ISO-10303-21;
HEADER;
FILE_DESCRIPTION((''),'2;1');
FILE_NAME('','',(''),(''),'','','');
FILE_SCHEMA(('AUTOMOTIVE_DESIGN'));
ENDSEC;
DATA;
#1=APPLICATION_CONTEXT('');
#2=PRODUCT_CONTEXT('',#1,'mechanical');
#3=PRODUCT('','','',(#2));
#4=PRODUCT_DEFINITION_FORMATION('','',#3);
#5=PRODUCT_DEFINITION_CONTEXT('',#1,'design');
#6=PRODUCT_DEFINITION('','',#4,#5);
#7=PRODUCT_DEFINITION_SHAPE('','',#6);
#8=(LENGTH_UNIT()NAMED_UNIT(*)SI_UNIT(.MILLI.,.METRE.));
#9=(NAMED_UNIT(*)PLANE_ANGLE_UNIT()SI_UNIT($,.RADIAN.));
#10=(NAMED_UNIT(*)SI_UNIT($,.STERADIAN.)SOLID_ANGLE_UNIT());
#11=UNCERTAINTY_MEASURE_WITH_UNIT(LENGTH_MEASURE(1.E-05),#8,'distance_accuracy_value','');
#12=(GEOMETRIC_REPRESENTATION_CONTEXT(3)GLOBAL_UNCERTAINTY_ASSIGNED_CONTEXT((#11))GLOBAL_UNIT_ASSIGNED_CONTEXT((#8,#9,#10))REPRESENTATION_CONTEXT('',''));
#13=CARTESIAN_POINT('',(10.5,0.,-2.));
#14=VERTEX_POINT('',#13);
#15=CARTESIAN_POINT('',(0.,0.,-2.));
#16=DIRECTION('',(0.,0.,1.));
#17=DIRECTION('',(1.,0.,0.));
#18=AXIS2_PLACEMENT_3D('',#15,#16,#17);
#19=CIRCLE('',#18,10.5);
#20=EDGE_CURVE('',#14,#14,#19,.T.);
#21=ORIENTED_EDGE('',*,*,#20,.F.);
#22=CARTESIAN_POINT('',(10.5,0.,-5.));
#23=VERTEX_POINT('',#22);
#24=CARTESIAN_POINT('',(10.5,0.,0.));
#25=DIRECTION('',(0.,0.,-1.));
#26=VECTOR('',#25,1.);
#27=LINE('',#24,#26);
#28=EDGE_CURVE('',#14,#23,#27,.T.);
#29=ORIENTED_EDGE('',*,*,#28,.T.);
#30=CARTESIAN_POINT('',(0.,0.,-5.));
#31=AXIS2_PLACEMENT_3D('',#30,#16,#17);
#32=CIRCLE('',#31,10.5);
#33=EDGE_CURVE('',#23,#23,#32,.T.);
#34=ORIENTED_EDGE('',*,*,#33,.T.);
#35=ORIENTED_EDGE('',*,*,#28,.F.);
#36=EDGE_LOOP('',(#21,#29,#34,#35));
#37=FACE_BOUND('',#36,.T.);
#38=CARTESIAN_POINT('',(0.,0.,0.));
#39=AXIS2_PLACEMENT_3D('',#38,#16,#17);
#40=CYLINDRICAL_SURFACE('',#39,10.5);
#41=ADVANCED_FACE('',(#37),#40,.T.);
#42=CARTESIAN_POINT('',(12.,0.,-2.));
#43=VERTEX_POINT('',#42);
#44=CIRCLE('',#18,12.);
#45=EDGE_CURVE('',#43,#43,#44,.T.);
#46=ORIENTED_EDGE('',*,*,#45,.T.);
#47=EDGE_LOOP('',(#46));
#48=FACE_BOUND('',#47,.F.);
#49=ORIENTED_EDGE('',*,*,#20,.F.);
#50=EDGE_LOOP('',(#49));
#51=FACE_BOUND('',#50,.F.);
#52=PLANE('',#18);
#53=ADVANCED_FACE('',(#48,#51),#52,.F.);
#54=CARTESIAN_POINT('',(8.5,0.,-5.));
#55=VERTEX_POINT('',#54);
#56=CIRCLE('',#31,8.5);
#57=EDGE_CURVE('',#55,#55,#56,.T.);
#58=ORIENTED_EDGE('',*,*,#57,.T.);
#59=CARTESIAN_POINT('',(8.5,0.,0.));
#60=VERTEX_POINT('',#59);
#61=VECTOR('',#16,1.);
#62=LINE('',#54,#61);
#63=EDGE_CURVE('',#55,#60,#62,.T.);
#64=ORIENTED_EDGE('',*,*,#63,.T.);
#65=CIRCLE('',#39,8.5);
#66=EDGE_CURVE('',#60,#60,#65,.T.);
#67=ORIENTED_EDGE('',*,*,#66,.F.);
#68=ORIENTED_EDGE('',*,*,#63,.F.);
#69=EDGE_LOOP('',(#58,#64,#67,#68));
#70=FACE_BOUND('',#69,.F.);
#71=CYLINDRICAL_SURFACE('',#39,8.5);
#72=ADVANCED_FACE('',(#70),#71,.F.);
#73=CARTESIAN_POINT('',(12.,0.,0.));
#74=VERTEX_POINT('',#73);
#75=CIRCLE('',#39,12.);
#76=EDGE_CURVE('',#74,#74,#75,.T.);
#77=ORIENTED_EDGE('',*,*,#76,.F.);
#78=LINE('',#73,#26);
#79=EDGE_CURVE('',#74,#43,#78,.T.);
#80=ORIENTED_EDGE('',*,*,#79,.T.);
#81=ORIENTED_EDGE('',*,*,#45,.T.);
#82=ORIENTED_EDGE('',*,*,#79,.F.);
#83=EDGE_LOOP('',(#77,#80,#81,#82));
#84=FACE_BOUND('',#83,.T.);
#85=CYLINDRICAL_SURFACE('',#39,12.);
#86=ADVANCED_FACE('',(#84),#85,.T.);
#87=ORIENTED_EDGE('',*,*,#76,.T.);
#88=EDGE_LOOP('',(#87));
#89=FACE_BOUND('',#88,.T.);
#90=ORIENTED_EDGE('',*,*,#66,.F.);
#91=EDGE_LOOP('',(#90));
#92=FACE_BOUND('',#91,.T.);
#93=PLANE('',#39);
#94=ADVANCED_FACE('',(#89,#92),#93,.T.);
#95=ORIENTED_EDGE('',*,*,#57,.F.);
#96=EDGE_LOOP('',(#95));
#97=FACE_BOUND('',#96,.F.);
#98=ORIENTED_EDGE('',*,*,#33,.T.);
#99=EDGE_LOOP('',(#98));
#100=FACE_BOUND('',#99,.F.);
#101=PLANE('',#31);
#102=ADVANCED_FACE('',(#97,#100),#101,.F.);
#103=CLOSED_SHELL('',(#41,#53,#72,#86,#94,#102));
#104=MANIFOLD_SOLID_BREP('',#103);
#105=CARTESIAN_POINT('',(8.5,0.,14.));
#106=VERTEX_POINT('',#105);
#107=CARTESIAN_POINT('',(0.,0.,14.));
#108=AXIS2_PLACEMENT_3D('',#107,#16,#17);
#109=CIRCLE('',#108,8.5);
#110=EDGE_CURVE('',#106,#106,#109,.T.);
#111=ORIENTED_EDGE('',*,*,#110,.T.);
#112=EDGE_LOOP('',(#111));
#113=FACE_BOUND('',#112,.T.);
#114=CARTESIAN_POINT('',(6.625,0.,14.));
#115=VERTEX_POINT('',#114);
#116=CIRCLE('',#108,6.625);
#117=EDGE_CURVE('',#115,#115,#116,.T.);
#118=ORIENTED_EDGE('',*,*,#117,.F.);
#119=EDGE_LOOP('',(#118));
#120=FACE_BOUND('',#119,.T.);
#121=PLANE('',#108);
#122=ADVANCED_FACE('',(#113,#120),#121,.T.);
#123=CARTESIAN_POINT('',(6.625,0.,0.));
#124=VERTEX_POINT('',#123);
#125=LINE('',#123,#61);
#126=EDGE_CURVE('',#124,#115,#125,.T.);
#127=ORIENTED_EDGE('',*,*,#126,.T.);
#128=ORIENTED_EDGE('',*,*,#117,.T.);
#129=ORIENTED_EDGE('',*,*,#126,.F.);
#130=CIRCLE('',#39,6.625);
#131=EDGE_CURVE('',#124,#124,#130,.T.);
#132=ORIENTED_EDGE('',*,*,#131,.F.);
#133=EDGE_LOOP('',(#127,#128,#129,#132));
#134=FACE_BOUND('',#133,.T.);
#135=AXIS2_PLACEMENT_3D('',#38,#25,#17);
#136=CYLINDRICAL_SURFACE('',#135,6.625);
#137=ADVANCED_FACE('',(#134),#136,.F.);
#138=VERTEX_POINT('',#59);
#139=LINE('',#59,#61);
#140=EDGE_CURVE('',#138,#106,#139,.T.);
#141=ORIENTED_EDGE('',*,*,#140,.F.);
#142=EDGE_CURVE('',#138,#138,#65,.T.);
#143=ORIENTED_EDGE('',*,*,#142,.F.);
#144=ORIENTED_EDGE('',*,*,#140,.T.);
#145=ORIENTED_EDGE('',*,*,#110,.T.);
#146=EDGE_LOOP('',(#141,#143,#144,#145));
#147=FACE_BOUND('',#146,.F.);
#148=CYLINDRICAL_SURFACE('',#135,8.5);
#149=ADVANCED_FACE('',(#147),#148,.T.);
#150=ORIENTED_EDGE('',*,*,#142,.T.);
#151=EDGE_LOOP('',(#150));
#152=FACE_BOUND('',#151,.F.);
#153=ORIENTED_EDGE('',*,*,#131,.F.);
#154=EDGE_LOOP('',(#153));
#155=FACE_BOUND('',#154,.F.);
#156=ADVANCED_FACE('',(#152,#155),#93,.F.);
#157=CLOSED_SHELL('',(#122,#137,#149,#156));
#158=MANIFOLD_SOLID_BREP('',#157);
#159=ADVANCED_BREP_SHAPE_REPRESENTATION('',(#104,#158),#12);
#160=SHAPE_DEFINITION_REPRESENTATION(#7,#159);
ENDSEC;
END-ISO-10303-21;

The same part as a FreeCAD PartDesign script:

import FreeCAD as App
import Part
import Sketcher
from FreeCAD import Vector

doc = App.newDocument("Part")
body = doc.addObject("PartDesign::Body", "Body")

# Sketch on XY plane
sketch1 = body.newObject("Sketcher::SketchObject", "Sketch")
sketch1.AttachmentSupport = (doc.getObject("XY_Plane"), [""])
sketch1.MapMode = "FlatFace"
sketch1.addGeometry([
    Part.Circle(Vector(0, 0, 0), Vector(0, 0, 1), 8),
    Part.Circle(Vector(0, 0, 0), Vector(0, 0, 1), 7),
], False)
sketch1.addConstraint([
    Sketcher.Constraint("Coincident", 0, 3, -1, 1),
    Sketcher.Constraint("Coincident", 1, 3, -1, 1),
    Sketcher.Constraint("Diameter", 0, 17.0),
    Sketcher.Constraint("Diameter", 1, 13.25),
])
pad1 = body.newObject("PartDesign::Pad", "Pad")
pad1.Profile = sketch1
pad1.Length = 14
body2 = doc.addObject("PartDesign::Body", "Body001")

# Sketch on XY plane
sketch2 = body2.newObject("Sketcher::SketchObject", "Sketch001")
sketch2.AttachmentSupport = (doc.getObject("XY_Plane001"), [""])
sketch2.MapMode = "FlatFace"
sketch2.addGeometry([
    Part.Circle(Vector(0, 0, 0), Vector(0, 0, 1), 12),
    Part.Circle(Vector(0, 0, 0), Vector(0, 0, 1), 8),
], False)
sketch2.addConstraint([
    Sketcher.Constraint("Coincident", 0, 3, -1, 1),
    Sketcher.Constraint("Coincident", 1, 3, -1, 1),
    Sketcher.Constraint("Diameter", 0, 24.0),
    Sketcher.Constraint("Diameter", 1, 17.0),
])
pad2 = body2.newObject("PartDesign::Pad", "Pad001")
pad2.Profile = sketch2
pad2.Length = 2
pad2.Reversed = True
body.AllowCompound = True
doc.recompute()

boolean = body.newObject("PartDesign::Boolean", "Boolean")
boolean.Type = "Fuse"
boolean.addObjects([body2])

# Sketch on XY plane
sketch3 = body.newObject("Sketcher::SketchObject", "Sketch002")
sketch3.AttachmentSupport = (doc.getObject("XY_Plane"), [""])
sketch3.MapMode = "FlatFace"
sketch3.addGeometry([
    Part.Circle(Vector(0, 0, 0), Vector(0, 0, 1), 10),
    Part.Circle(Vector(0, 0, 0), Vector(0, 0, 1), 8),
], False)
sketch3.addConstraint([
    Sketcher.Constraint("Coincident", 0, 3, -1, 1),
    Sketcher.Constraint("Coincident", 1, 3, -1, 1),
    Sketcher.Constraint("Diameter", 0, 21.0),
    Sketcher.Constraint("Diameter", 1, 17.0),
])
pad3 = body.newObject("PartDesign::Pad", "Pad002")
pad3.Profile = sketch3
pad3.Length = 5
pad3.Reversed = True

doc.recompute()
